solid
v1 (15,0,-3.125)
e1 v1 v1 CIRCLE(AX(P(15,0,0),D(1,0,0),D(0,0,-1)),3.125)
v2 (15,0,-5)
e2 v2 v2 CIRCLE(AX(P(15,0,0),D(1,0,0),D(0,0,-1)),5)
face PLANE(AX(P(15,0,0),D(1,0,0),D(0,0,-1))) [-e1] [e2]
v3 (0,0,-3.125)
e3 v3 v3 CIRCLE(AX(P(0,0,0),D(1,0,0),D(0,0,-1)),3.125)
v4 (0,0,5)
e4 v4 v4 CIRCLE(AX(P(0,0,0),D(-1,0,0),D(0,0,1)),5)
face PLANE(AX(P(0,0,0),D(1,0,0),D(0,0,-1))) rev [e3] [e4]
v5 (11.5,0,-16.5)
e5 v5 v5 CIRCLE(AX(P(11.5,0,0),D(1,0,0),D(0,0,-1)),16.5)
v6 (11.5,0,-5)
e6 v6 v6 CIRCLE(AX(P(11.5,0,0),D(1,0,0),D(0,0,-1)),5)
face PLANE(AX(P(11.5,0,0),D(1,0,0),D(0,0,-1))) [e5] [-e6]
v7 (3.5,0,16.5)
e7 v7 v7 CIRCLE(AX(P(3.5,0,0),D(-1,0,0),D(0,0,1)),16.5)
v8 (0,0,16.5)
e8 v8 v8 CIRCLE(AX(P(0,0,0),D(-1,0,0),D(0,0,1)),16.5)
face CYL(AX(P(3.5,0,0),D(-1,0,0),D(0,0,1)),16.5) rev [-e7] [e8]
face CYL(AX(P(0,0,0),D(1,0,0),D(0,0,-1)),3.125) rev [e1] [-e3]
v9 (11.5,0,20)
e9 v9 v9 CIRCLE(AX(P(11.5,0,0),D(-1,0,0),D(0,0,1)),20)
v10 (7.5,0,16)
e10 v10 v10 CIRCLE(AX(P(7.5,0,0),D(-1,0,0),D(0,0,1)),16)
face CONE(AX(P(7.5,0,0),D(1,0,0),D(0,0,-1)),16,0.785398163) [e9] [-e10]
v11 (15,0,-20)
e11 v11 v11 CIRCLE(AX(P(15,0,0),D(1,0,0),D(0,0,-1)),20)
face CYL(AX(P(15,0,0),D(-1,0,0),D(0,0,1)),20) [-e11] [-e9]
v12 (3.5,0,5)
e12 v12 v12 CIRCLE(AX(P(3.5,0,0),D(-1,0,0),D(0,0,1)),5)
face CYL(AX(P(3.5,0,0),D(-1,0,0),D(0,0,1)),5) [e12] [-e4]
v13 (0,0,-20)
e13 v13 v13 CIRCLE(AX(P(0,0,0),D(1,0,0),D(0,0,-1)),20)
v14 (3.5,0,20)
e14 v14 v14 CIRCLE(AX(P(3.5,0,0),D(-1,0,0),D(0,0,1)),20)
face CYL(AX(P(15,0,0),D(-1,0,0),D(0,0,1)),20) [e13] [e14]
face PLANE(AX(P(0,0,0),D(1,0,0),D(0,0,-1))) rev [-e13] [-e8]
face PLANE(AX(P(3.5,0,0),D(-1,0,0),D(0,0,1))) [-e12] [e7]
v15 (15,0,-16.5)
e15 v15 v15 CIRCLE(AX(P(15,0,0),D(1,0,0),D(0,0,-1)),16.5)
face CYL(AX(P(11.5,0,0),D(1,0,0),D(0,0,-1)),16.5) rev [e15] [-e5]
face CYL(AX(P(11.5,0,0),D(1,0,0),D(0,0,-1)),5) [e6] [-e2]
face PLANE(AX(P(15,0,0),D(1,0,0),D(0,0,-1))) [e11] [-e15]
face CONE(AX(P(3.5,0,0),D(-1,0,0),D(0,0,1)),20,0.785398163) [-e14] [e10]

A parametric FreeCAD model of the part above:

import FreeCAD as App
import Part
import Sketcher

V = App.Vector
Q = App.Units.Quantity


def add_polygon(sketch, points):
    """Adds a closed chain of lines whose ends are joined by coincident constraints."""
    first, n = sketch.GeometryCount, len(points)
    for a, b in zip(points, points[1:] + points[:1]):
        sketch.addGeometry(Part.LineSegment(App.Vector(*a, 0), App.Vector(*b, 0)), False)
    for i in range(n):
        sketch.addConstraint(Sketcher.Constraint("Coincident", first + i, 2, first + (i + 1) % n, 1))

doc = App.newDocument("Part")
body = doc.addObject("PartDesign::Body", "Body")

sketch1 = body.newObject("Sketcher::SketchObject", "Sketch")
sketch1.AttachmentSupport = (doc.getObject("YZ_Plane"), [""])
sketch1.MapMode = "FlatFace"
sketch1.addGeometry(Part.Circle(V(0, 0, 0), V(0, 0, 1), 20), False)
sketch1.addConstraint(Sketcher.Constraint("Coincident", 0, 3, -1, 1))
sketch1.addConstraint(Sketcher.Constraint("Diameter", 0, Q("40 mm")))
pad1 = body.newObject("PartDesign::Pad", "Pad")
pad1.Profile = sketch1
pad1.Length = 15

sketch2 = body.newObject("Sketcher::SketchObject", "Sketch001")
sketch2.AttachmentSupport = (doc.getObject("YZ_Plane"), [""])
sketch2.MapMode = "FlatFace"
sketch2.AttachmentOffset = App.Placement(V(0, 0, 15), App.Rotation())
sketch2.addGeometry(Part.Circle(V(0, 0, 0), V(0, 0, 1), 16), False)
sketch2.addGeometry(Part.Circle(V(0, 0, 0), V(0, 0, 1), 5), False)
sketch2.addConstraint(Sketcher.Constraint("Coincident", 0, 3, -1, 1))
sketch2.addConstraint(Sketcher.Constraint("Coincident", 1, 3, -1, 1))
sketch2.addConstraint(Sketcher.Constraint("Diameter", 0, Q("33 mm")))
sketch2.addConstraint(Sketcher.Constraint("Diameter", 1, Q("10 mm")))
pocket1 = body.newObject("PartDesign::Pocket", "Pocket")
pocket1.Profile = sketch2
pocket1.Length = 3.5

sketch3 = body.newObject("Sketcher::SketchObject", "Sketch002")
sketch3.AttachmentSupport = (doc.getObject("YZ_Plane"), [""])
sketch3.MapMode = "FlatFace"
sketch3.AttachmentOffset = App.Placement(V(0, 0, 3.5), App.Rotation())
sketch3.addGeometry(Part.Circle(V(0, 0, 0), V(0, 0, 1), 16), False)
sketch3.addGeometry(Part.Circle(V(0, 0, 0), V(0, 0, 1), 5), False)
sketch3.addConstraint(Sketcher.Constraint("Coincident", 0, 3, -1, 1))
sketch3.addConstraint(Sketcher.Constraint("Coincident", 1, 3, -1, 1))
sketch3.addConstraint(Sketcher.Constraint("Diameter", 0, Q("33 mm")))
sketch3.addConstraint(Sketcher.Constraint("Diameter", 1, Q("10 mm")))
pocket2 = body.newObject("PartDesign::Pocket", "Pocket001")
pocket2.Profile = sketch3
pocket2.Length = 3.5

sketch4 = body.newObject("Sketcher::SketchObject", "Sketch003")
sketch4.AttachmentSupport = (doc.getObject("YZ_Plane"), [""])
sketch4.MapMode = "FlatFace"
sketch4.AttachmentOffset = App.Placement(V(0, 0, 15), App.Rotation())
sketch4.addGeometry(Part.Circle(V(0, 0, 0), V(0, 0, 1), 3.1), False)
sketch4.addConstraint(Sketcher.Constraint("Coincident", 0, 3, -1, 1))
sketch4.addConstraint(Sketcher.Constraint("Diameter", 0, Q("6.25 mm")))
pocket3 = body.newObject("PartDesign::Pocket", "Pocket002")
pocket3.Profile = sketch4
pocket3.Type = "ThroughAll"

sketch5 = body.newObject("Sketcher::SketchObject", "Sketch004")
sketch5.AttachmentSupport = (doc.getObject("XZ_Plane"), [""])
sketch5.MapMode = "FlatFace"
add_polygon(sketch5, [(4, -20), (8, -16), (12, -20)])
sketch5.addConstraint(Sketcher.Constraint("Horizontal", 2))
sketch5.addConstraint(Sketcher.Constraint("Perpendicular", 0, 1))
sketch5.addConstraint(Sketcher.Constraint("Equal", 0, 1))
sketch5.addConstraint(Sketcher.Constraint("DistanceX", 2, 2, 2, 1, Q("8 mm")))
sketch5.addConstraint(Sketcher.Constraint("DistanceY", 0, 2, -1, 1, Q("16 mm")))
sketch5.addConstraint(Sketcher.Constraint("DistanceX", -1, 1, 0, 2, Q("7.5 mm")))
groove = body.newObject("PartDesign::Groove", "Groove")
groove.Profile = sketch5
groove.ReferenceAxis = (sketch5, ["H_Axis"])
groove.Angle = 360

doc.recompute()
